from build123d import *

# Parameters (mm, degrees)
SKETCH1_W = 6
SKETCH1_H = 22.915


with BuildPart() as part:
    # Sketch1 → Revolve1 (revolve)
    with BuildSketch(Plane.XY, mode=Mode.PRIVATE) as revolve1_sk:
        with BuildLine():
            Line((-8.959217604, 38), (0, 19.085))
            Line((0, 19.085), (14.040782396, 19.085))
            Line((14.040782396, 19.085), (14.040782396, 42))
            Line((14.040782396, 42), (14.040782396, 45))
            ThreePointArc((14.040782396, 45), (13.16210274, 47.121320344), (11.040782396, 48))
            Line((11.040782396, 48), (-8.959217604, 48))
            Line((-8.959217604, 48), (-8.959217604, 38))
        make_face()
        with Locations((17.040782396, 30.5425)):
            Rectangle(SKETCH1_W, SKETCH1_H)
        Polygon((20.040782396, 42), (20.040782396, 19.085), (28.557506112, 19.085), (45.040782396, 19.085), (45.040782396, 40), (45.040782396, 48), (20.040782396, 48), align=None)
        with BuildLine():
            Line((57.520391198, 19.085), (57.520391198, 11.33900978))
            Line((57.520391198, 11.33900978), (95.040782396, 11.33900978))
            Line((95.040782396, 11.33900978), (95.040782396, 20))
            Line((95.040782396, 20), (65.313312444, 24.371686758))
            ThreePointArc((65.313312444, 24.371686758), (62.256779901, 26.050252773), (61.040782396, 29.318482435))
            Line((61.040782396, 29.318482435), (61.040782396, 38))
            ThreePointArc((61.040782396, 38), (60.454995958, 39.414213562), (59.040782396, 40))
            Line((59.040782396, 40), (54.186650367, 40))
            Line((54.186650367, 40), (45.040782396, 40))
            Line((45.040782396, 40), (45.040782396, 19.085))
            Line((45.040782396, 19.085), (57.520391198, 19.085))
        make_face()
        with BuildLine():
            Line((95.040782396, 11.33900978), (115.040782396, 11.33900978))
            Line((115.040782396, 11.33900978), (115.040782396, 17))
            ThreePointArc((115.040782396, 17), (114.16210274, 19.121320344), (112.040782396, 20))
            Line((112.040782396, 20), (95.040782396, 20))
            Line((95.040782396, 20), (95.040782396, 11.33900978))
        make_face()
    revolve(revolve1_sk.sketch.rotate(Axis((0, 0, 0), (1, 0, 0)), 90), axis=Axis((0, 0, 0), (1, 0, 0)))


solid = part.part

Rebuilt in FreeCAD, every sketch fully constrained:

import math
import FreeCAD as App
import Part
import Sketcher

doc = App.newDocument("Part")
body = doc.addObject("PartDesign::Body", "Body")

# Sketch on XY plane
sketch1 = body.newObject("Sketcher::SketchObject", "Sketch")
sketch1.AttachmentSupport = (doc.getObject("XY_Plane"), [""])
sketch1.MapMode = "FlatFace"
sketch1.addGeometry([
    Part.LineSegment(App.Vector(-9, 38, 0), App.Vector(0, 19.1, 0)),  # 0
    Part.LineSegment(App.Vector(0, 19.1, 0), App.Vector(57.5, 19.1, 0)),  # 1
    Part.LineSegment(App.Vector(57.5, 19.1, 0), App.Vector(57.5, 11.3, 0)),  # 2
    Part.LineSegment(App.Vector(57.5, 11.3, 0), App.Vector(115, 11.3, 0)),  # 3
    Part.LineSegment(App.Vector(115, 11.3, 0), App.Vector(115, 17, 0)),  # 4
    Part.ArcOfCircle(Part.Circle(App.Vector(112, 17, 0), App.Vector(0, 0, 1), 3), math.radians(0), math.radians(90)),  # 5
    Part.LineSegment(App.Vector(112, 20, 0), App.Vector(95, 20, 0)),  # 6
    Part.LineSegment(App.Vector(95, 20, 0), App.Vector(65.3, 24.4, 0)),  # 7
    Part.ArcOfCircle(Part.Circle(App.Vector(66, 29.3, 0), App.Vector(0, 0, 1), 5), math.radians(180), math.radians(262)),  # 8
    Part.LineSegment(App.Vector(61, 29.3, 0), App.Vector(61, 38, 0)),  # 9
    Part.ArcOfCircle(Part.Circle(App.Vector(59, 38, 0), App.Vector(0, 0, 1), 2), math.radians(0), math.radians(90)),  # 10
    Part.LineSegment(App.Vector(59, 40, 0), App.Vector(45, 40, 0)),  # 11
    Part.LineSegment(App.Vector(45, 40, 0), App.Vector(45, 48, 0)),  # 12
    Part.LineSegment(App.Vector(45, 48, 0), App.Vector(20, 48, 0)),  # 13
    Part.LineSegment(App.Vector(20, 48, 0), App.Vector(20, 42, 0)),  # 14
    Part.LineSegment(App.Vector(20, 42, 0), App.Vector(14, 42, 0)),  # 15
    Part.LineSegment(App.Vector(14, 42, 0), App.Vector(14, 45, 0)),  # 16
    Part.ArcOfCircle(Part.Circle(App.Vector(11, 45, 0), App.Vector(0, 0, 1), 3), math.radians(0), math.radians(90)),  # 17
    Part.LineSegment(App.Vector(11, 48, 0), App.Vector(-9, 48, 0)),  # 18
    Part.LineSegment(App.Vector(-9, 48, 0), App.Vector(-9, 38, 0)),  # 19
], False)
sketch1.addConstraint([
    Sketcher.Constraint("Coincident", 0, 2, 1, 1),
    Sketcher.Constraint("Coincident", 1, 2, 2, 1),
    Sketcher.Constraint("Coincident", 2, 2, 3, 1),
    Sketcher.Constraint("Coincident", 3, 2, 4, 1),
    Sketcher.Constraint("Tangent", 4, 2, 5, 1),
    Sketcher.Constraint("Tangent", 5, 2, 6, 1),
    Sketcher.Constraint("Coincident", 6, 2, 7, 1),
    Sketcher.Constraint("Tangent", 7, 2, 8, 2),
    Sketcher.Constraint("Tangent", 8, 1, 9, 1),
    Sketcher.Constraint("Tangent", 9, 2, 10, 1),
    Sketcher.Constraint("Tangent", 10, 2, 11, 1),
    Sketcher.Constraint("Coincident", 11, 2, 12, 1),
    Sketcher.Constraint("Coincident", 12, 2, 13, 1),
    Sketcher.Constraint("Coincident", 13, 2, 14, 1),
    Sketcher.Constraint("Coincident", 14, 2, 15, 1),
    Sketcher.Constraint("Coincident", 15, 2, 16, 1),
    Sketcher.Constraint("Tangent", 16, 2, 17, 1),
    Sketcher.Constraint("Tangent", 17, 2, 18, 1),
    Sketcher.Constraint("Coincident", 18, 2, 19, 1),
    Sketcher.Constraint("Coincident", 19, 2, 0, 1),
    Sketcher.Constraint("Horizontal", 1),
    Sketcher.Constraint("Vertical", 2),
    Sketcher.Constraint("Horizontal", 3),
    Sketcher.Constraint("Vertical", 4),
    Sketcher.Constraint("Horizontal", 6),
    Sketcher.Constraint("Vertical", 9),
    Sketcher.Constraint("Horizontal", 11),
    Sketcher.Constraint("Vertical", 12),
    Sketcher.Constraint("Horizontal", 13),
    Sketcher.Constraint("Vertical", 14),
    Sketcher.Constraint("Horizontal", 15),
    Sketcher.Constraint("Vertical", 16),
    Sketcher.Constraint("Horizontal", 18),
    Sketcher.Constraint("Vertical", 19),
    Sketcher.Constraint("Equal", 5, 17),
    Sketcher.Constraint("PointOnObject", 0, 2, -2),
    Sketcher.Constraint("Horizontal", 13, 2, 17, 2),
    Sketcher.Constraint("Horizontal", 9, 2, 19, 2),
    Sketcher.Constraint("Equal", 1, 3),
    Sketcher.Constraint("Equal", 15, 14),
    Sketcher.Constraint("Radius", 5, 3.0),
    Sketcher.Constraint("Radius", 8, 5.0),
    Sketcher.Constraint("Radius", 10, 2.0),
    Sketcher.Constraint("DistanceX", 6, 2, 6, 1, 17.0),
    Sketcher.Constraint("DistanceX", 11, 2, 11, 1, 14.0),
    Sketcher.Constraint("DistanceX", 13, 2, 13, 1, 25.0),
    Sketcher.Constraint("DistanceX", 15, 2, 15, 1, 6.0),
    Sketcher.Constraint("DistanceX", 18, 2, 18, 1, 20.0),
    Sketcher.Constraint("DistanceY", 12, 1, 12, 2, 8.0),
    Sketcher.Constraint("DistanceY", -1, 1, 5, 3, 17.0),
    Sketcher.Constraint("DistanceY", -1, 1, 10, 3, 38.0),
    Sketcher.Constraint("DistanceX", 8, 3, 5, 3, 46.0),
    Sketcher.Constraint("DistanceY", -1, 1, 0, 2, 19.085),
    Sketcher.Constraint("Distance", 7, 30.047198),
    Sketcher.Constraint("DistanceX", 1, 1, 1, 2, 57.520391),
    Sketcher.Constraint("DistanceY", 2, 2, 2, 1, 7.74599),
])
revolution = body.newObject("PartDesign::Revolution", "Revolution")
revolution.Profile = sketch1
revolution.ReferenceAxis = (sketch1, ["H_Axis"])
revolution.Angle = 360

doc.recompute()
